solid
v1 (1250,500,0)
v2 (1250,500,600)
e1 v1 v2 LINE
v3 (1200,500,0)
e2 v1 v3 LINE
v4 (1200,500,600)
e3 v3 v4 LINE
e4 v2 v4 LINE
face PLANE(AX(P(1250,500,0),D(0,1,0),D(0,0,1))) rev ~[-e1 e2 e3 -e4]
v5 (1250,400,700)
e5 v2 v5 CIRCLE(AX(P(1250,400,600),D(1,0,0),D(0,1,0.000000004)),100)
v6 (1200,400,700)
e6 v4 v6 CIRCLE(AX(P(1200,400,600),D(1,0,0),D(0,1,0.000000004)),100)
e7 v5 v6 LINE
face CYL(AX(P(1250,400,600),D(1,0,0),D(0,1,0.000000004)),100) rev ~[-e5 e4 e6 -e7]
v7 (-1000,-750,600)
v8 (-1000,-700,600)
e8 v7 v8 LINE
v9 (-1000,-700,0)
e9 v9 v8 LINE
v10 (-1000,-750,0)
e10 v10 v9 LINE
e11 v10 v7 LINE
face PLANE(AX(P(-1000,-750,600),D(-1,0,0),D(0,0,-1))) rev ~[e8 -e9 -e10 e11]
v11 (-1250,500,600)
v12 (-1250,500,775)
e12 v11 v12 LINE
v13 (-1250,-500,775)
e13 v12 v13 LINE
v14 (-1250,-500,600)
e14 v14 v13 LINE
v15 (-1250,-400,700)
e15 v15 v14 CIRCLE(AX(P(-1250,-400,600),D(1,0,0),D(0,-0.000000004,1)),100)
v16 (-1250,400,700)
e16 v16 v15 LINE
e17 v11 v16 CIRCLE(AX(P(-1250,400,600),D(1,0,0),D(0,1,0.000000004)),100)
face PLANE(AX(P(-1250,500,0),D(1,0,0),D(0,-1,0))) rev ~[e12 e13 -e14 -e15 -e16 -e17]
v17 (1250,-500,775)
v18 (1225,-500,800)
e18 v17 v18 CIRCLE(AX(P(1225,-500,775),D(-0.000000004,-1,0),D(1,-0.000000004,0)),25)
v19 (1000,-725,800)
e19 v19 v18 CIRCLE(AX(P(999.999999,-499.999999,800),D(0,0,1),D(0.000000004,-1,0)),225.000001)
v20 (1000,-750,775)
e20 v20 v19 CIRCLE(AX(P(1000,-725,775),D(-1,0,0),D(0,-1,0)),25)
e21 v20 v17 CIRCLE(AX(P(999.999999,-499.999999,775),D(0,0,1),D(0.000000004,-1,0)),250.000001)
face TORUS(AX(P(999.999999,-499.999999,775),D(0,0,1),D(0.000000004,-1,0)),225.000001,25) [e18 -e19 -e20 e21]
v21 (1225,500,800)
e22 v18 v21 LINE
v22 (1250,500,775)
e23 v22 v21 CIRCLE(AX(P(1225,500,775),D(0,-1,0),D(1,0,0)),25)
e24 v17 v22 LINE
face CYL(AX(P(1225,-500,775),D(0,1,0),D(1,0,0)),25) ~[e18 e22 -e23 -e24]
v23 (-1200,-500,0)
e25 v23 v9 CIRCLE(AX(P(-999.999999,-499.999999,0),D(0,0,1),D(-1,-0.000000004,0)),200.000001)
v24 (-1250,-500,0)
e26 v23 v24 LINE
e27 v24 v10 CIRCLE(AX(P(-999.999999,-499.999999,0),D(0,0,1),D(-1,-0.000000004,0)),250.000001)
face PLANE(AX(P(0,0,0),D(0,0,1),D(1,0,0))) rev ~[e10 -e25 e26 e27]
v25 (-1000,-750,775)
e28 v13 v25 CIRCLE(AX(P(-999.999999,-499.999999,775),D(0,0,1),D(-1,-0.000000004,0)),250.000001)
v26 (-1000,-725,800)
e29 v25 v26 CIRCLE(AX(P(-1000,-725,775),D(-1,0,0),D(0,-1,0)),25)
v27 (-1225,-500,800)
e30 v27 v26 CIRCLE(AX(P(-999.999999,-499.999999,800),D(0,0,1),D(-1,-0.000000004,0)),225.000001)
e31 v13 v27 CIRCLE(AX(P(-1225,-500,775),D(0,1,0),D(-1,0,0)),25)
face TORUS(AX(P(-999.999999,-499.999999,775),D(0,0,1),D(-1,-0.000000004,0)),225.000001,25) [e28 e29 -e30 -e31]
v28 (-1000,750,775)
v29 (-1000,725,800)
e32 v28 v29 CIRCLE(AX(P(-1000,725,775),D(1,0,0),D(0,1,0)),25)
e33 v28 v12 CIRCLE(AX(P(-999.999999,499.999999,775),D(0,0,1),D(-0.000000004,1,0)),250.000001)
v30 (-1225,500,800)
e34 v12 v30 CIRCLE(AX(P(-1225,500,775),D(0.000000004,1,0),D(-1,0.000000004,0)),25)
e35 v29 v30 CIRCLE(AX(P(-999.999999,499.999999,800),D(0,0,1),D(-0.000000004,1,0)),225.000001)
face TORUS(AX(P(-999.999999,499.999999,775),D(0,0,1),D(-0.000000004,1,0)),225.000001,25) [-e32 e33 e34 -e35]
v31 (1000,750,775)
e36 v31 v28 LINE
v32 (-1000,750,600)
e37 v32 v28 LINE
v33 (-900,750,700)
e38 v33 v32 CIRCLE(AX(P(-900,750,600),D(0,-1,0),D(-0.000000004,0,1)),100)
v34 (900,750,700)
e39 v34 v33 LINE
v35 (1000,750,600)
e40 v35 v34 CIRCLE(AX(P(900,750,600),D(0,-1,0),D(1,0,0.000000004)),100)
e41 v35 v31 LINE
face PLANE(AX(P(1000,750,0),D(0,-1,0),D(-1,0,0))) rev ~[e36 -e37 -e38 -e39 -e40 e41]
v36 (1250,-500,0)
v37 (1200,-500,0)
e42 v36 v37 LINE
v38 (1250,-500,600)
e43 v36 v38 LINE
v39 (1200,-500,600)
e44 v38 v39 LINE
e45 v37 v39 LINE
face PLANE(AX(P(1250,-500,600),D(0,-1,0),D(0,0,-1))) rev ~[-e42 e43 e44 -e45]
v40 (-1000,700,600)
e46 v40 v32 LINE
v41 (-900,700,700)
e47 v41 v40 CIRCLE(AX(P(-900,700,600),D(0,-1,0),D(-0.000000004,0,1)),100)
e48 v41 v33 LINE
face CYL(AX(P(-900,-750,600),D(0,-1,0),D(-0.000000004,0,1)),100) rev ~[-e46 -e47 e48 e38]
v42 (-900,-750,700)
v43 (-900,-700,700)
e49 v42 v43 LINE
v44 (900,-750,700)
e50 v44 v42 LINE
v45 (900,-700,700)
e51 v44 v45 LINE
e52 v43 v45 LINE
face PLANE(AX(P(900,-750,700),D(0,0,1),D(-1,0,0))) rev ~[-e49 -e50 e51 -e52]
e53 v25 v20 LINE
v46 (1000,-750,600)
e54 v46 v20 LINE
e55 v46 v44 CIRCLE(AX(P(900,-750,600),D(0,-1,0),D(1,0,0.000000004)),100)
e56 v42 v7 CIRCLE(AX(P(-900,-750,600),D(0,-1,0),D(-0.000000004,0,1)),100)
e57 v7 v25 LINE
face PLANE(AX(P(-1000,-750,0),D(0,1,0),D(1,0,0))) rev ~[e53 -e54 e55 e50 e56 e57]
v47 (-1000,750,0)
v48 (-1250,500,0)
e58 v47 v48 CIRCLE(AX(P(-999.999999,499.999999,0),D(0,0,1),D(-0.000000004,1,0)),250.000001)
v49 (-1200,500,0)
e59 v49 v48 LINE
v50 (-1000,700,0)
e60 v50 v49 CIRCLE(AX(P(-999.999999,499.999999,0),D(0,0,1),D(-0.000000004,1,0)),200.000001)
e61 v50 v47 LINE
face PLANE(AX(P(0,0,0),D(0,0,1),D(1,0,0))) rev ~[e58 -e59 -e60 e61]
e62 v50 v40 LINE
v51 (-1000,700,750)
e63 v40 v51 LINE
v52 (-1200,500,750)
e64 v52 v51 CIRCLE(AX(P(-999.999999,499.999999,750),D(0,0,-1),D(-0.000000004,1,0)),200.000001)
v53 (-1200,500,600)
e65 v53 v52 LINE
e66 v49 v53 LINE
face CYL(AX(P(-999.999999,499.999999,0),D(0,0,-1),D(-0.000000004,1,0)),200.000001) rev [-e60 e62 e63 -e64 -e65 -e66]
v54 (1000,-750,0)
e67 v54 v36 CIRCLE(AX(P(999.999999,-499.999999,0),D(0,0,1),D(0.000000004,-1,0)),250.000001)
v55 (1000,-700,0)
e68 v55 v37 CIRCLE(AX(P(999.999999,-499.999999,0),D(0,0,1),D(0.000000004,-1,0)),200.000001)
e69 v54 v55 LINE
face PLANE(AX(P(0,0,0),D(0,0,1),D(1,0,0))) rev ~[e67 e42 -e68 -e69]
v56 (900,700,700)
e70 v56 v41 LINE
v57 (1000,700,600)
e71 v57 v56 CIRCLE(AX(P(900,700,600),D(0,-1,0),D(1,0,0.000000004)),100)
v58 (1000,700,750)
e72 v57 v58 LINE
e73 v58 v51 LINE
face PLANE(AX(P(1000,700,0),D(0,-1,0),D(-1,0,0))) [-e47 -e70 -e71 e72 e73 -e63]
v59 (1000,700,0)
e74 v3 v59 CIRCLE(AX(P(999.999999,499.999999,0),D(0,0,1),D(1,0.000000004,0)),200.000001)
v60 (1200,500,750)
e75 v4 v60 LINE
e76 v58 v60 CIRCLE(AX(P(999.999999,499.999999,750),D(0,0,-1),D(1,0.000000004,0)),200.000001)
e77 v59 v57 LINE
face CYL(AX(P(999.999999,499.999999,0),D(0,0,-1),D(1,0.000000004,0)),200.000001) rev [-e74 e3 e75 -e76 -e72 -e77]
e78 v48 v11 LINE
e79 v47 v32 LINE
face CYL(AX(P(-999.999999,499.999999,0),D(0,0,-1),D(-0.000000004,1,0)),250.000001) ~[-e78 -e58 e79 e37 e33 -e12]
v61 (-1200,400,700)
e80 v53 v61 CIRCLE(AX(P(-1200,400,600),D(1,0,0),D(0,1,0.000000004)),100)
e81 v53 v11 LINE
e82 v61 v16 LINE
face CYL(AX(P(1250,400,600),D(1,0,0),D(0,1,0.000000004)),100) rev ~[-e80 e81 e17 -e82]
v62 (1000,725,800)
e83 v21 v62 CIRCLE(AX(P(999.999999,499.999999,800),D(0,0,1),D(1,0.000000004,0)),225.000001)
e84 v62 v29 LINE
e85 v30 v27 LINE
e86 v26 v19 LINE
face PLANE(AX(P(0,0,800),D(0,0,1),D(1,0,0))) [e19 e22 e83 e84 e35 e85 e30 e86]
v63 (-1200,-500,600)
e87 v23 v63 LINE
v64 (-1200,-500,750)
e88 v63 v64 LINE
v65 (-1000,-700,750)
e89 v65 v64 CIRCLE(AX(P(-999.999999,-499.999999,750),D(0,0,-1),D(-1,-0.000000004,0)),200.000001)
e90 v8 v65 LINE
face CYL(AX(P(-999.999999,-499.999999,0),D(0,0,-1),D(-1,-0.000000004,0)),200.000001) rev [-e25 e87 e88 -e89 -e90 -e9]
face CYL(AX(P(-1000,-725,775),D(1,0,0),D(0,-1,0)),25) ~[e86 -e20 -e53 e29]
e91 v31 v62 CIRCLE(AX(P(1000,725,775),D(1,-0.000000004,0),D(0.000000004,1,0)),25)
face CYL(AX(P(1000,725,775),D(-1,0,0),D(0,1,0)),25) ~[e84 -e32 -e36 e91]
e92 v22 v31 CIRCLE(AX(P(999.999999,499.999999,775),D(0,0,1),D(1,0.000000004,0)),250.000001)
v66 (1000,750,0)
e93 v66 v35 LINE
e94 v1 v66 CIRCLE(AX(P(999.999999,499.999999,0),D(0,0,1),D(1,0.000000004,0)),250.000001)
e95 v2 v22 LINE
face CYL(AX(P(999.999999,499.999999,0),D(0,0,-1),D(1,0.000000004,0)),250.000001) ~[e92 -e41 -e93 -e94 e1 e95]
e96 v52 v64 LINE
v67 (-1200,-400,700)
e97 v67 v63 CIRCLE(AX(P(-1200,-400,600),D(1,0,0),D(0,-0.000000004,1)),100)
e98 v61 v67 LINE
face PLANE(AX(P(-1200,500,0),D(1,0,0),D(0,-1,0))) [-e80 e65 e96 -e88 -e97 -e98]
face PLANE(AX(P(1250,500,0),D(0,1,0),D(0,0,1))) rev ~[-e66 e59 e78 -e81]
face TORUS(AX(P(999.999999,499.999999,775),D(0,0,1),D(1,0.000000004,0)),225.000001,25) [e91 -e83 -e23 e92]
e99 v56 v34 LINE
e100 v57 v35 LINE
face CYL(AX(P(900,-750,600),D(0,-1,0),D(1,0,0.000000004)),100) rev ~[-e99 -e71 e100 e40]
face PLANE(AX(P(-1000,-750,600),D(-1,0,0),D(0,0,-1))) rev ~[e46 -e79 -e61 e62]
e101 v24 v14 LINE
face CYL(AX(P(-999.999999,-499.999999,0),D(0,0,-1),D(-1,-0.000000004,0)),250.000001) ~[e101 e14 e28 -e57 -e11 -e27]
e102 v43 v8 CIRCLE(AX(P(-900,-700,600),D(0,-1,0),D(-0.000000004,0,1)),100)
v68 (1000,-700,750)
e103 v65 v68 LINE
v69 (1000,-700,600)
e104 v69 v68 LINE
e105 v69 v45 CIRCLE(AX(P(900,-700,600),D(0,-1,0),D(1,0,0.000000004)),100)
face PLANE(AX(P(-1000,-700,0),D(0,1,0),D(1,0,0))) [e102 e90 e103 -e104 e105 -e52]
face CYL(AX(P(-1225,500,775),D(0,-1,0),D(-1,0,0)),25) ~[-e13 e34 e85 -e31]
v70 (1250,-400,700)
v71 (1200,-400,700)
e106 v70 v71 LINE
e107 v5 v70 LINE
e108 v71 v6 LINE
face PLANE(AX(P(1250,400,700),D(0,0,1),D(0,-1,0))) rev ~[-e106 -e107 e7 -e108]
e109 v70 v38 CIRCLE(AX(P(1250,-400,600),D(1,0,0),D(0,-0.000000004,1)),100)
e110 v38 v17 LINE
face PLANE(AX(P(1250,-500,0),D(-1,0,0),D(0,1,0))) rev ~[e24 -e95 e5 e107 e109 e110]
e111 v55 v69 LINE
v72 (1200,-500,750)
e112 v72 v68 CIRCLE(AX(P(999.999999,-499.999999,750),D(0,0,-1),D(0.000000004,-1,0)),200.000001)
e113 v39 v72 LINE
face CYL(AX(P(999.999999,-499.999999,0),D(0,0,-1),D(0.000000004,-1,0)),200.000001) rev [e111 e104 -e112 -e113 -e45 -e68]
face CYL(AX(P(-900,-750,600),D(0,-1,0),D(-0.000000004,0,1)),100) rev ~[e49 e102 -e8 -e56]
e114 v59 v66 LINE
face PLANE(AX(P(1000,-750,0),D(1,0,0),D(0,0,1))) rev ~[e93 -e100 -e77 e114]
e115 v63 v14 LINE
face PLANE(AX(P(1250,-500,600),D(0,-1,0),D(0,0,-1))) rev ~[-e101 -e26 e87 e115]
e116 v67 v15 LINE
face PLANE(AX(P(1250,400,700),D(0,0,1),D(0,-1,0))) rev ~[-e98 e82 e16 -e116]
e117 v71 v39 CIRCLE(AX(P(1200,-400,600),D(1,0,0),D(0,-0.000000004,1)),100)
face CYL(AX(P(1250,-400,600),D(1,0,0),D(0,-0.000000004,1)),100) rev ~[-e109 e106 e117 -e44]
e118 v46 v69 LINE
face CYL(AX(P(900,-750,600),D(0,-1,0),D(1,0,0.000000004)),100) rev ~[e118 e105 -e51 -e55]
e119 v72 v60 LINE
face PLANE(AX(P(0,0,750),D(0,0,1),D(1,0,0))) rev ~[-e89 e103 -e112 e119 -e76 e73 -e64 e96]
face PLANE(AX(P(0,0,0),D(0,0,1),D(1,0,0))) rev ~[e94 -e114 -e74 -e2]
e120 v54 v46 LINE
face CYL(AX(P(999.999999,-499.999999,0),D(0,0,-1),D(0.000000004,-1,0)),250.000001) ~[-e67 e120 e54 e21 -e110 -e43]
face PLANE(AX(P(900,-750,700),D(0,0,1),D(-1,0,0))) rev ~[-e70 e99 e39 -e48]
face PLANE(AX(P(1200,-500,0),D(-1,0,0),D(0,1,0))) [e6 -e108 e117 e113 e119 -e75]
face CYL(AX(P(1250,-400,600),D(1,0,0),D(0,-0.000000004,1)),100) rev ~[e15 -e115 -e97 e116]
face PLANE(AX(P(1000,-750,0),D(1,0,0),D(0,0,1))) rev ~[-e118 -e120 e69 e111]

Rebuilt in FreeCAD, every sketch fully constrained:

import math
import FreeCAD as App
import Part
import Sketcher


def edges_at(feature, points):
    """Names of the edges that pass closest to the given points."""
    edges = feature.Shape.Edges
    near = lambda p: min(range(len(edges)), key=lambda i: edges[i].distToShape(Part.Vertex(*p))[0])
    return sorted({f"Edge{near(p) + 1}" for p in points})


def faces_at(feature, points):
    """Names of the faces that lie closest to the given points."""
    faces = feature.Shape.Faces
    near = lambda p: min(range(len(faces)), key=lambda i: faces[i].distToShape(Part.Vertex(*p))[0])
    return sorted({f"Face{near(p) + 1}" for p in points})

doc = App.newDocument("Part")
body = doc.addObject("PartDesign::Body", "Body")

# Sketch on XY plane
sketch1 = doc.addObject("Sketcher::SketchObject", "Sketch")
body.addObject(sketch1)
sketch1.AttachmentSupport = (doc.XY_Plane, [""])
sketch1.MapMode = "FlatFace"
sketch1.addGeometry(Part.LineSegment(App.Vector(-1000, -750, 0), App.Vector(1000, -750, 0)), False)
sketch1.addGeometry(Part.ArcOfCircle(Part.Circle(App.Vector(1000, -500, 0), App.Vector(0, 0, 1), 250), math.radians(-90), math.radians(0)), False)
sketch1.addGeometry(Part.LineSegment(App.Vector(1250, -500, 0), App.Vector(1250, 500, 0)), False)
sketch1.addGeometry(Part.ArcOfCircle(Part.Circle(App.Vector(1000, 500, 0), App.Vector(0, 0, 1), 250), math.radians(0), math.radians(90)), False)
sketch1.addGeometry(Part.LineSegment(App.Vector(1000, 750, 0), App.Vector(-1000, 750, 0)), False)
sketch1.addGeometry(Part.ArcOfCircle(Part.Circle(App.Vector(-1000, 500, 0), App.Vector(0, 0, 1), 250), math.radians(90), math.radians(180)), False)
sketch1.addGeometry(Part.LineSegment(App.Vector(-1250, 500, 0), App.Vector(-1250, -500, 0)), False)
sketch1.addGeometry(Part.ArcOfCircle(Part.Circle(App.Vector(-1000, -500, 0), App.Vector(0, 0, 1), 250), math.radians(-180), math.radians(-90)), False)
sketch1.addConstraint(Sketcher.Constraint("Tangent", 0, 2, 1, 1))
sketch1.addConstraint(Sketcher.Constraint("Tangent", 1, 2, 2, 1))
sketch1.addConstraint(Sketcher.Constraint("Tangent", 2, 2, 3, 1))
sketch1.addConstraint(Sketcher.Constraint("Tangent", 3, 2, 4, 1))
sketch1.addConstraint(Sketcher.Constraint("Tangent", 4, 2, 5, 1))
sketch1.addConstraint(Sketcher.Constraint("Tangent", 5, 2, 6, 1))
sketch1.addConstraint(Sketcher.Constraint("Tangent", 6, 2, 7, 1))
sketch1.addConstraint(Sketcher.Constraint("Tangent", 7, 2, 0, 1))
sketch1.addConstraint(Sketcher.Constraint("Horizontal", 0))
sketch1.addConstraint(Sketcher.Constraint("Vertical", 2))
sketch1.addConstraint(Sketcher.Constraint("Horizontal", 4))
sketch1.addConstraint(Sketcher.Constraint("Vertical", 6))
sketch1.addConstraint(Sketcher.Constraint("Equal", 1, 3))
sketch1.addConstraint(Sketcher.Constraint("Equal", 3, 5))
sketch1.addConstraint(Sketcher.Constraint("Equal", 5, 7))
sketch1.addConstraint(Sketcher.Constraint("Symmetric", 1, 3, 5, 3, -1, 1))
sketch1.addConstraint(Sketcher.Constraint("Radius", 1, 250.000001))
sketch1.addConstraint(Sketcher.Constraint("DistanceX", 0, 1, 0, 2, 2000.0))
sketch1.addConstraint(Sketcher.Constraint("DistanceY", 2, 1, 2, 2, 1000.0))
pad1 = doc.addObject("PartDesign::Pad", "Pad")
body.addObject(pad1)
pad1.Profile = sketch1
pad1.Length = 800
doc.recompute()

thickness = doc.addObject("PartDesign::Thickness", "Thickness")
body.addObject(thickness)
thickness.Base = (pad1, faces_at(pad1, [(0, 0, 0)]))
thickness.Value = 50
thickness.Reversed = True
thickness.Join = "Arc"

# Sketch on XZ plane
sketch2 = doc.addObject("Sketcher::SketchObject", "Sketch001")
body.addObject(sketch2)
sketch2.AttachmentSupport = (doc.XZ_Plane, [""])
sketch2.MapMode = "FlatFace"
sketch2.AttachmentOffset = App.Placement(App.Vector(0, 0, 750), App.Rotation())
sketch2.addGeometry(Part.LineSegment(App.Vector(-1000, 600, 0), App.Vector(-1000, 0, 0)), False)
sketch2.addGeometry(Part.LineSegment(App.Vector(-1000, 0, 0), App.Vector(1000, 0, 0)), False)
sketch2.addGeometry(Part.LineSegment(App.Vector(1000, 0, 0), App.Vector(1000, 600, 0)), False)
sketch2.addGeometry(Part.ArcOfCircle(Part.Circle(App.Vector(900, 600, 0), App.Vector(0, 0, 1), 100), math.radians(0), math.radians(90)), False)
sketch2.addGeometry(Part.LineSegment(App.Vector(900, 700, 0), App.Vector(-900, 700, 0)), False)
sketch2.addGeometry(Part.ArcOfCircle(Part.Circle(App.Vector(-900, 600, 0), App.Vector(0, 0, 1), 100), math.radians(90), math.radians(180)), False)
sketch2.addConstraint(Sketcher.Constraint("Coincident", 0, 2, 1, 1))
sketch2.addConstraint(Sketcher.Constraint("Coincident", 1, 2, 2, 1))
sketch2.addConstraint(Sketcher.Constraint("Tangent", 2, 2, 3, 1))
sketch2.addConstraint(Sketcher.Constraint("Tangent", 3, 2, 4, 1))
sketch2.addConstraint(Sketcher.Constraint("Tangent", 4, 2, 5, 1))
sketch2.addConstraint(Sketcher.Constraint("Tangent", 5, 2, 0, 1))
sketch2.addConstraint(Sketcher.Constraint("Vertical", 0))
sketch2.addConstraint(Sketcher.Constraint("Horizontal", 1))
sketch2.addConstraint(Sketcher.Constraint("Vertical", 2))
sketch2.addConstraint(Sketcher.Constraint("Horizontal", 4))
sketch2.addConstraint(Sketcher.Constraint("Equal", 3, 5))
sketch2.addConstraint(Sketcher.Constraint("Symmetric", 0, 2, 1, 2, -1, 1))
sketch2.addConstraint(Sketcher.Constraint("Radius", 3, 100.0))
sketch2.addConstraint(Sketcher.Constraint("DistanceX", 1, 1, 1, 2, 2000.0))
sketch2.addConstraint(Sketcher.Constraint("DistanceY", 0, 2, 0, 1, 600.0))
pocket1 = doc.addObject("PartDesign::Pocket", "Pocket")
body.addObject(pocket1)
pocket1.Profile = sketch2
pocket1.Type = "ThroughAll"

# Sketch on YZ plane
sketch3 = doc.addObject("Sketcher::SketchObject", "Sketch002")
body.addObject(sketch3)
sketch3.AttachmentSupport = (doc.YZ_Plane, [""])
sketch3.MapMode = "FlatFace"
sketch3.AttachmentOffset = App.Placement(App.Vector(0, 0, 1250), App.Rotation())
sketch3.addGeometry(Part.LineSegment(App.Vector(-500, 600, 0), App.Vector(-500, 0, 0)), False)
sketch3.addGeometry(Part.LineSegment(App.Vector(-500, 0, 0), App.Vector(500, 0, 0)), False)
sketch3.addGeometry(Part.LineSegment(App.Vector(500, 0, 0), App.Vector(500, 600, 0)), False)
sketch3.addGeometry(Part.ArcOfCircle(Part.Circle(App.Vector(400, 600, 0), App.Vector(0, 0, 1), 100), math.radians(0), math.radians(90)), False)
sketch3.addGeometry(Part.LineSegment(App.Vector(400, 700, 0), App.Vector(-400, 700, 0)), False)
sketch3.addGeometry(Part.ArcOfCircle(Part.Circle(App.Vector(-400, 600, 0), App.Vector(0, 0, 1), 100), math.radians(90), math.radians(180)), False)
sketch3.addConstraint(Sketcher.Constraint("Coincident", 0, 2, 1, 1))
sketch3.addConstraint(Sketcher.Constraint("Coincident", 1, 2, 2, 1))
sketch3.addConstraint(Sketcher.Constraint("Tangent", 2, 2, 3, 1))
sketch3.addConstraint(Sketcher.Constraint("Tangent", 3, 2, 4, 1))
sketch3.addConstraint(Sketcher.Constraint("Tangent", 4, 2, 5, 1))
sketch3.addConstraint(Sketcher.Constraint("Tangent", 5, 2, 0, 1))
sketch3.addConstraint(Sketcher.Constraint("Vertical", 0))
sketch3.addConstraint(Sketcher.Constraint("Horizontal", 1))
sketch3.addConstraint(Sketcher.Constraint("Vertical", 2))
sketch3.addConstraint(Sketcher.Constraint("Horizontal", 4))
sketch3.addConstraint(Sketcher.Constraint("Equal", 3, 5))
sketch3.addConstraint(Sketcher.Constraint("Symmetric", 0, 2, 1, 2, -1, 1))
sketch3.addConstraint(Sketcher.Constraint("Radius", 3, 100.0))
sketch3.addConstraint(Sketcher.Constraint("DistanceX", 1, 1, 1, 2, 1000.0))
sketch3.addConstraint(Sketcher.Constraint("DistanceY", 0, 2, 0, 1, 600.0))
pocket2 = doc.addObject("PartDesign::Pocket", "Pocket001")
body.addObject(pocket2)
pocket2.Profile = sketch3
pocket2.Type = "ThroughAll"
doc.recompute()

fillet = doc.addObject("PartDesign::Fillet", "Fillet")
body.addObject(fillet)
fillet.Base = (pocket2, edges_at(pocket2, [
    (0, -750, 800),
    (1176.777, -676.777, 800),
    (1250, 0, 800),
    (1176.777, 676.777, 800),
    (0, 750, 800),
    (-1176.777, 676.777, 800),
    (-1250, 0, 800),
    (-1176.777, -676.777, 800),
]))
fillet.Radius = 25

doc.recompute()
